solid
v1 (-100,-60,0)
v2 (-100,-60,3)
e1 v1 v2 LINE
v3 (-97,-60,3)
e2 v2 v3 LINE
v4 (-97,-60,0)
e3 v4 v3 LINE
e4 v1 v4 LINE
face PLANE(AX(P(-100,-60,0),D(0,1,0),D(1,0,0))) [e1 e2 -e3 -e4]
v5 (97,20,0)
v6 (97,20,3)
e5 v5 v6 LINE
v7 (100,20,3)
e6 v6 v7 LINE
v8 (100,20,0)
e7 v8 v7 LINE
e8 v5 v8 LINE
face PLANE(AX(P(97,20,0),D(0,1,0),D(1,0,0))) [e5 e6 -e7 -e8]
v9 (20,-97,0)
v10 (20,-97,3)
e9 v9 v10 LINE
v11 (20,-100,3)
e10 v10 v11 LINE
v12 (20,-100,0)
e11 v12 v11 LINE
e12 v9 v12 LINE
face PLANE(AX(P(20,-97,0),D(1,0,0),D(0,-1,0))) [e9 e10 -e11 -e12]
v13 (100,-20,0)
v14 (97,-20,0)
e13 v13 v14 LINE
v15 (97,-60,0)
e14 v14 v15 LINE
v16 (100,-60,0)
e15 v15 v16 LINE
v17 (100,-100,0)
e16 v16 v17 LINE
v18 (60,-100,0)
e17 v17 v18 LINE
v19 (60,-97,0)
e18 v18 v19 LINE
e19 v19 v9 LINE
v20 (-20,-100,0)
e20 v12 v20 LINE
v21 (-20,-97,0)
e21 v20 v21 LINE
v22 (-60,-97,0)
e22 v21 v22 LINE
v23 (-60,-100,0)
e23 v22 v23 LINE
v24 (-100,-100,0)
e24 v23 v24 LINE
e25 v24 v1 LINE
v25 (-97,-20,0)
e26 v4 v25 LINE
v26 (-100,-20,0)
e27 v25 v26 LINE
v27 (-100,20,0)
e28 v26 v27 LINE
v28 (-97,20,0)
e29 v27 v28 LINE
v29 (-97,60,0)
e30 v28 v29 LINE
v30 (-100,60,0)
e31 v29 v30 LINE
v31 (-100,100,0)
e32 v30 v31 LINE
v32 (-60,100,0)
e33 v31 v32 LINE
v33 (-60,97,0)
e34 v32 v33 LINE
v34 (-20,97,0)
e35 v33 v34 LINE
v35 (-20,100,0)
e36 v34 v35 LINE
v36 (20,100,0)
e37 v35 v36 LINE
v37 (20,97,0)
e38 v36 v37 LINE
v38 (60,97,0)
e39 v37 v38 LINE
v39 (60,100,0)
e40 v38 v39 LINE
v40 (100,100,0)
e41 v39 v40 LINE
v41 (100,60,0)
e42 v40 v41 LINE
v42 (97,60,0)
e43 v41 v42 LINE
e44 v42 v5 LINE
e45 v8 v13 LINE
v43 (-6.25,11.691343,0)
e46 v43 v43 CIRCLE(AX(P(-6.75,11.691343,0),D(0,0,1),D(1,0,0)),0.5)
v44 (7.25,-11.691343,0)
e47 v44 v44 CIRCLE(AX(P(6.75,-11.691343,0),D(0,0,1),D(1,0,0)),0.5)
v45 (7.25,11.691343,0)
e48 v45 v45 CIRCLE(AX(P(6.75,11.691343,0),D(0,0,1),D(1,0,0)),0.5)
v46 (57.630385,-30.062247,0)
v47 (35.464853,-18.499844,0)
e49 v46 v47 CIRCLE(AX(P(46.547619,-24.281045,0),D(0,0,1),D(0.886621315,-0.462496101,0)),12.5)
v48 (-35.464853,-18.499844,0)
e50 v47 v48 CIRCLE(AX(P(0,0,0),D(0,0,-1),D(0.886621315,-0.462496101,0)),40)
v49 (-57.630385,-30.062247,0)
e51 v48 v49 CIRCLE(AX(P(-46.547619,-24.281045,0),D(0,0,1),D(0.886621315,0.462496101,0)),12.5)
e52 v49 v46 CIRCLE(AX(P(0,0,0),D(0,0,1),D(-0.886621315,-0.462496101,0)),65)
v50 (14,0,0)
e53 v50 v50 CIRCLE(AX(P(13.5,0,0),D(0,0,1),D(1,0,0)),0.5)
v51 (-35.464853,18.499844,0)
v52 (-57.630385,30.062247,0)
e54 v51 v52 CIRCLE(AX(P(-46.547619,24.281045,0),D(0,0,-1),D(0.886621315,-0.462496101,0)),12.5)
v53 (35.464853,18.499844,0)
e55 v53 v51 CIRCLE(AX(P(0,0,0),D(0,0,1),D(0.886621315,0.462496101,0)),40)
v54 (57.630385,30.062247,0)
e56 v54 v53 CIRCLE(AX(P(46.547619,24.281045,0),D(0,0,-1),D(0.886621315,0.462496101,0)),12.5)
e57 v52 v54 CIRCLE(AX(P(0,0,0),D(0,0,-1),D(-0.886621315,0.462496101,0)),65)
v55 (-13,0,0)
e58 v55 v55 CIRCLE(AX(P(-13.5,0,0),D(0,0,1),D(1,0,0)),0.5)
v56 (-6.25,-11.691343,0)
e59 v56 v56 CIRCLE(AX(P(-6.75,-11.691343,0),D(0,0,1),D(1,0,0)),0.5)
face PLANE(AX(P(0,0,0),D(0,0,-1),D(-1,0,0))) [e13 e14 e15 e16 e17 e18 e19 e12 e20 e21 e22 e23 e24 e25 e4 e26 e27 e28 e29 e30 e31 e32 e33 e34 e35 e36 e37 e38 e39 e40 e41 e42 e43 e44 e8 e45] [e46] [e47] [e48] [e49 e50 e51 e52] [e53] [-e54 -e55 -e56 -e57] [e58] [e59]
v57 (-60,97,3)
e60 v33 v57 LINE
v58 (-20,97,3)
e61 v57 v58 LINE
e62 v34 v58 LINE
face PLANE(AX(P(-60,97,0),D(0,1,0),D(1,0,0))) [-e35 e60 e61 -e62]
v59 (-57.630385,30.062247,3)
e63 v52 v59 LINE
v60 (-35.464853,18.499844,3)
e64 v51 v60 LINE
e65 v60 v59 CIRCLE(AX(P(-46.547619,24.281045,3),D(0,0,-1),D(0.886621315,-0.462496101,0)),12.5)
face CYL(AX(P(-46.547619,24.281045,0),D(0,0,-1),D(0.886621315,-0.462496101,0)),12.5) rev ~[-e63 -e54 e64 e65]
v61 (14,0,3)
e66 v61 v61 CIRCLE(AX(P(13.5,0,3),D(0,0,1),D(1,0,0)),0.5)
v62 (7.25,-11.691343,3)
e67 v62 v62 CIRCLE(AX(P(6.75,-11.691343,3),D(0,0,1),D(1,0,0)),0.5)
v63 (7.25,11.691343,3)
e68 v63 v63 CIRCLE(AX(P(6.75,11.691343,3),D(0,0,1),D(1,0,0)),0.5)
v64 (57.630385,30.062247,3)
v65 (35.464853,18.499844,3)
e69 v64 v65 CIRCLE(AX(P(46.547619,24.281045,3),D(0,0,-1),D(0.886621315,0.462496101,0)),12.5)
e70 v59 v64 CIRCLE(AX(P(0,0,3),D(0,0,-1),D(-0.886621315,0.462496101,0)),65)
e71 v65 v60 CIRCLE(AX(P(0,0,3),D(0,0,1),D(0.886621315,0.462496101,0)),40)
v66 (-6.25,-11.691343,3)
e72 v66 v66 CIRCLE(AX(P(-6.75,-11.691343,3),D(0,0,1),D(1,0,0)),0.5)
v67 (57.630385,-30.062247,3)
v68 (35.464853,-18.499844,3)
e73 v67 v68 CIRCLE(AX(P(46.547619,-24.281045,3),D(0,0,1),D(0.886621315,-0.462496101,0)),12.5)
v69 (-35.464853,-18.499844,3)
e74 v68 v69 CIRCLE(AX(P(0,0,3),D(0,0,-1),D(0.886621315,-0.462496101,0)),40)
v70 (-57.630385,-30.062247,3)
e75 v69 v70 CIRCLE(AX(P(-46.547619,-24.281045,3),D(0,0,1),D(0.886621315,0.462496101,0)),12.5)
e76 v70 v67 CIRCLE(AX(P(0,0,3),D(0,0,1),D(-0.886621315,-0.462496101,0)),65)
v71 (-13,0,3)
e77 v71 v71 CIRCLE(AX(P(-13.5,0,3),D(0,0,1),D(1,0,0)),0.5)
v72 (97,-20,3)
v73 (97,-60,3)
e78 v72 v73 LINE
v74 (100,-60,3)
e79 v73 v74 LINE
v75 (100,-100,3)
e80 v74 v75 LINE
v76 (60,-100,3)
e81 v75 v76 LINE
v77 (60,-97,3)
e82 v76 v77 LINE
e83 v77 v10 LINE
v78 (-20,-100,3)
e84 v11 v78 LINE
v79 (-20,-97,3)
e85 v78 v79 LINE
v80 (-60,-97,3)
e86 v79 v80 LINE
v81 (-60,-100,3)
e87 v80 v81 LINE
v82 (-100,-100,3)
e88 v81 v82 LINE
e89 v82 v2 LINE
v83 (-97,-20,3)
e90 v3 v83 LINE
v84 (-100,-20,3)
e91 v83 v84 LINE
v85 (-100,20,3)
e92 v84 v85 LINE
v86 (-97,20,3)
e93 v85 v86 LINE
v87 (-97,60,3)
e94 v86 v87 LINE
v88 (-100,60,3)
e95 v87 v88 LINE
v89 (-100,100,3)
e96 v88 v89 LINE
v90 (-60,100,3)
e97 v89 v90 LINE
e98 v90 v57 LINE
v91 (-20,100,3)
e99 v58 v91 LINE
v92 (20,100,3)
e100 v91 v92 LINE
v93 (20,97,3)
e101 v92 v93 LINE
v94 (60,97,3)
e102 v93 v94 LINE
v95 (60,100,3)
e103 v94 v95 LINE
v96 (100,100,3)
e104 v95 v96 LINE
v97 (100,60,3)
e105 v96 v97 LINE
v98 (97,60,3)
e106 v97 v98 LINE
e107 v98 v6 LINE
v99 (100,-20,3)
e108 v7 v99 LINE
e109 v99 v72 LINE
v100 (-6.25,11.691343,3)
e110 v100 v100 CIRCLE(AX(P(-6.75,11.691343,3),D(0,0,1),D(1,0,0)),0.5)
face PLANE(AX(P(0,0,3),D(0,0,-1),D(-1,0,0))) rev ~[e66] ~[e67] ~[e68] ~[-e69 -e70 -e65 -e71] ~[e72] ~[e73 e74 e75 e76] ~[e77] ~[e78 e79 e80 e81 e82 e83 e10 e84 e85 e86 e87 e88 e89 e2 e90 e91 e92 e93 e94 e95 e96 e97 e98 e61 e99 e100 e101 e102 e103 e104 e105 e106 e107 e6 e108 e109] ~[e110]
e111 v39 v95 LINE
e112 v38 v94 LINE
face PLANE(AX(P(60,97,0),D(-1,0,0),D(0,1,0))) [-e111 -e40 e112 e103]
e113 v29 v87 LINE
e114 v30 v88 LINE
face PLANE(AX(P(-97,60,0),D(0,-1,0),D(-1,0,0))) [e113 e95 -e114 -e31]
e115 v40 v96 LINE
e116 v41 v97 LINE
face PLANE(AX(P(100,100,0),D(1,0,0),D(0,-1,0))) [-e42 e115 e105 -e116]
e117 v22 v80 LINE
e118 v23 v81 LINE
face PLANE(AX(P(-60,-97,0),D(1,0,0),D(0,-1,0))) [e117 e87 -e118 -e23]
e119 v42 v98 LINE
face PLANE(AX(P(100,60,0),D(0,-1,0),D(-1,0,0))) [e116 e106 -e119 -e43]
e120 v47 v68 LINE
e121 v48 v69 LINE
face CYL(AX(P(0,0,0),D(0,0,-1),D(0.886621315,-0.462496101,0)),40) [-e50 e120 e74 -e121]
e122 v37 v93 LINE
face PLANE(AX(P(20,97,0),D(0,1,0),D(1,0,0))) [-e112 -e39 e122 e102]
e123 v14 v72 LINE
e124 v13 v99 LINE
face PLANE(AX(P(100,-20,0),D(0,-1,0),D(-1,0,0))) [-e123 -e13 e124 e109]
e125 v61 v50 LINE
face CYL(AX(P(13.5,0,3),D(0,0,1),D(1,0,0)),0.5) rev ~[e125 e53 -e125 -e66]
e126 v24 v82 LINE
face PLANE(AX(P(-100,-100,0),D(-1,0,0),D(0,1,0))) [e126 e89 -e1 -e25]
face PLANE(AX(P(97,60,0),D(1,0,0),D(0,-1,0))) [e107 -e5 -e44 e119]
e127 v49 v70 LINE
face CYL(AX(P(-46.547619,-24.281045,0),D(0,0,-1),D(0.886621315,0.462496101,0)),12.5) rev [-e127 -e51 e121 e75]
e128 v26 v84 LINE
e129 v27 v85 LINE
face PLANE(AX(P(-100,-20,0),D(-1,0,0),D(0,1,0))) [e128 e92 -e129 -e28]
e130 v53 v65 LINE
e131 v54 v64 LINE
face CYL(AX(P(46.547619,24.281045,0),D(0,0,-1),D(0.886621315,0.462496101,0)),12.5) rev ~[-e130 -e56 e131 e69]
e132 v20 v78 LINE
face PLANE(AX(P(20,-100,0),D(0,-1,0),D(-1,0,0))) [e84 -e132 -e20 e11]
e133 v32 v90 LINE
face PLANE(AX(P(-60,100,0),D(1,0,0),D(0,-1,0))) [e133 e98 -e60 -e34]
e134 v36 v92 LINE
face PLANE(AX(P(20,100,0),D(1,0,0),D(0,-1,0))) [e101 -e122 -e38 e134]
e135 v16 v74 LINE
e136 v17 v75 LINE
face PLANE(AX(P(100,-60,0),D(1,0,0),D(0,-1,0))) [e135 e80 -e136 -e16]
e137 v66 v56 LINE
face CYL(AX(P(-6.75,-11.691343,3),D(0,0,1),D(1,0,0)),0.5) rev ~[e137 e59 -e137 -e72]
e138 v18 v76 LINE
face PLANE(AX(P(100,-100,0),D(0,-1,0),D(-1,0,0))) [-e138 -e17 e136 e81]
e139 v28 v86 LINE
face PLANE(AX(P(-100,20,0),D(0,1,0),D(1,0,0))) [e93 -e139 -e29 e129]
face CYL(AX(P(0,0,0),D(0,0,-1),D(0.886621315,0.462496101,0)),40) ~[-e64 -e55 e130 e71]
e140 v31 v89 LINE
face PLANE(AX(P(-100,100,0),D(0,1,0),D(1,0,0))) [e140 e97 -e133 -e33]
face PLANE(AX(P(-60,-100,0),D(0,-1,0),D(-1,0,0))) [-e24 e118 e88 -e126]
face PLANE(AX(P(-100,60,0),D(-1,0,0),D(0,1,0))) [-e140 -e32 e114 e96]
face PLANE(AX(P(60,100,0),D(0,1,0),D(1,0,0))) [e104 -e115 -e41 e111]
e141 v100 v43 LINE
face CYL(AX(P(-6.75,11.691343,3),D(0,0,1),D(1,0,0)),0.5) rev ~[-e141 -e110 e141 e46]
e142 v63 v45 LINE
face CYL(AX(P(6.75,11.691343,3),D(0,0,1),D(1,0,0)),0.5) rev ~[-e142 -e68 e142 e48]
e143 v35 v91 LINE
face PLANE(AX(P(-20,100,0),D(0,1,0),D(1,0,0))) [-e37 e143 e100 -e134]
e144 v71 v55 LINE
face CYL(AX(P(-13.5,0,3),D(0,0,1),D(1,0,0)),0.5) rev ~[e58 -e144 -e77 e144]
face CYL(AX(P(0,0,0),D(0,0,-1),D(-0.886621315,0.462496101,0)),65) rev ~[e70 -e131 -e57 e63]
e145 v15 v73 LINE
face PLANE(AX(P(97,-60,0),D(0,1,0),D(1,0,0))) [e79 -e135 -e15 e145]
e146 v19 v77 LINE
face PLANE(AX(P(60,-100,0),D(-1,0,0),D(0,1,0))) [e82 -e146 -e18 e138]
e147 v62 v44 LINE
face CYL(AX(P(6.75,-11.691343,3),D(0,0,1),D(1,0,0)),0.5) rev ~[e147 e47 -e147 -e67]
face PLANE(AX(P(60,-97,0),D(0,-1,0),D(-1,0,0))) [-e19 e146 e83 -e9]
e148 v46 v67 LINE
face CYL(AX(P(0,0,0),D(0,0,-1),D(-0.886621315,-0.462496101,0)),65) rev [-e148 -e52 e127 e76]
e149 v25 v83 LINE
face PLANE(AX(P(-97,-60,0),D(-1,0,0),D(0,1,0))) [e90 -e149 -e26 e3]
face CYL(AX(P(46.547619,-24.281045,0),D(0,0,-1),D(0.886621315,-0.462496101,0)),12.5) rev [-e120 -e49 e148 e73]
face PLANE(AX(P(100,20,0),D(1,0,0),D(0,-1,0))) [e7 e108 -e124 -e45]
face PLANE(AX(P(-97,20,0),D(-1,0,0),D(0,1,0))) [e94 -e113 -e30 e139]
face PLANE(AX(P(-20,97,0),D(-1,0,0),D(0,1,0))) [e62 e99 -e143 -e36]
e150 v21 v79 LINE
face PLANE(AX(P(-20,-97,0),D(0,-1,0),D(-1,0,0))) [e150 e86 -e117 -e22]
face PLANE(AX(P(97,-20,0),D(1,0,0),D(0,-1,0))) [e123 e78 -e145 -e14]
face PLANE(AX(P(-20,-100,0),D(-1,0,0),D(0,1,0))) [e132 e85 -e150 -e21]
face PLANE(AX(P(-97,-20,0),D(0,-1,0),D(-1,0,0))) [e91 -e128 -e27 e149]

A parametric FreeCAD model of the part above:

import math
import FreeCAD as App
import Part
import Sketcher
from FreeCAD import Vector
Q = App.Units.Quantity

doc = App.newDocument("Part")
body = doc.addObject("PartDesign::Body", "Body")

sketch1 = doc.addObject("Sketcher::SketchObject", "Sketch")
body.addObject(sketch1)
sketch1.AttachmentSupport = (doc.XY_Plane, [""])
sketch1.MapMode = "FlatFace"
sketch1.addGeometry([
    Part.LineSegment(Vector(100, -100, 0), Vector(100, -60, 0)),
    Part.LineSegment(Vector(100, -60, 0), Vector(97, -60, 0)),
    Part.LineSegment(Vector(97, -60, 0), Vector(97, -20, 0)),
    Part.LineSegment(Vector(97, -20, 0), Vector(100, -20, 0)),
    Part.LineSegment(Vector(100, -20, 0), Vector(100, 20, 0)),
    Part.LineSegment(Vector(100, 20, 0), Vector(97, 20, 0)),
    Part.LineSegment(Vector(97, 20, 0), Vector(97, 60, 0)),
    Part.LineSegment(Vector(97, 60, 0), Vector(100, 60, 0)),
    Part.LineSegment(Vector(100, 60, 0), Vector(100, 100, 0)),
    Part.LineSegment(Vector(100, 100, 0), Vector(60, 100, 0)),
    Part.LineSegment(Vector(60, 100, 0), Vector(60, 97, 0)),
    Part.LineSegment(Vector(60, 97, 0), Vector(20, 97, 0)),
    Part.LineSegment(Vector(20, 97, 0), Vector(20, 100, 0)),
    Part.LineSegment(Vector(20, 100, 0), Vector(-20, 100, 0)),
    Part.LineSegment(Vector(-20, 100, 0), Vector(-20, 97, 0)),
    Part.LineSegment(Vector(-20, 97, 0), Vector(-60, 97, 0)),
    Part.LineSegment(Vector(-60, 97, 0), Vector(-60, 100, 0)),
    Part.LineSegment(Vector(-60, 100, 0), Vector(-100, 100, 0)),
    Part.LineSegment(Vector(-100, 100, 0), Vector(-100, 60, 0)),
    Part.LineSegment(Vector(-100, 60, 0), Vector(-97, 60, 0)),
    Part.LineSegment(Vector(-97, 60, 0), Vector(-97, 20, 0)),
    Part.LineSegment(Vector(-97, 20, 0), Vector(-100, 20, 0)),
    Part.LineSegment(Vector(-100, 20, 0), Vector(-100, -20, 0)),
    Part.LineSegment(Vector(-100, -20, 0), Vector(-97, -20, 0)),
    Part.LineSegment(Vector(-97, -20, 0), Vector(-97, -60, 0)),
    Part.LineSegment(Vector(-97, -60, 0), Vector(-100, -60, 0)),
    Part.LineSegment(Vector(-100, -60, 0), Vector(-100, -100, 0)),
    Part.LineSegment(Vector(-100, -100, 0), Vector(-60, -100, 0)),
    Part.LineSegment(Vector(-60, -100, 0), Vector(-60, -97, 0)),
    Part.LineSegment(Vector(-60, -97, 0), Vector(-20, -97, 0)),
    Part.LineSegment(Vector(-20, -97, 0), Vector(-20, -100, 0)),
    Part.LineSegment(Vector(-20, -100, 0), Vector(20, -100, 0)),
    Part.LineSegment(Vector(20, -100, 0), Vector(20, -97, 0)),
    Part.LineSegment(Vector(20, -97, 0), Vector(60, -97, 0)),
    Part.LineSegment(Vector(60, -97, 0), Vector(60, -100, 0)),
    Part.LineSegment(Vector(60, -100, 0), Vector(100, -100, 0)),
    Part.ArcOfCircle(Part.Circle(Vector(-46.547619, -24.281045, 0), Vector(0, 0, 1), 12.5), math.radians(27.548294), math.radians(207.548294)),
    Part.ArcOfCircle(Part.Circle(Vector(0, 0, 0), Vector(0, 0, 1), 40), math.radians(-152.451706), math.radians(-27.548294)),
    Part.ArcOfCircle(Part.Circle(Vector(46.547619, -24.281045, 0), Vector(0, 0, 1), 12.5), math.radians(-27.548294), math.radians(152.451706)),
    Part.ArcOfCircle(Part.Circle(Vector(0, 0, 0), Vector(0, 0, 1), 65), math.radians(-152.451706), math.radians(-27.548294)),
    Part.ArcOfCircle(Part.Circle(Vector(0, 0, 0), Vector(0, 0, 1), 40), math.radians(27.548294), math.radians(152.451706)),
    Part.ArcOfCircle(Part.Circle(Vector(-46.547619, 24.281045, 0), Vector(0, 0, 1), 12.5), math.radians(152.451706), math.radians(332.451706)),
    Part.ArcOfCircle(Part.Circle(Vector(0, 0, 0), Vector(0, 0, 1), 65), math.radians(27.548294), math.radians(152.451706)),
    Part.ArcOfCircle(Part.Circle(Vector(46.547619, 24.281045, 0), Vector(0, 0, 1), 12.5), math.radians(-152.451706), math.radians(27.548294)),
], False)
sketch1.addConstraint([
    Sketcher.Constraint("Coincident", 0, 2, 1, 1),
    Sketcher.Constraint("Coincident", 1, 2, 2, 1),
    Sketcher.Constraint("Coincident", 2, 2, 3, 1),
    Sketcher.Constraint("Coincident", 3, 2, 4, 1),
    Sketcher.Constraint("Coincident", 4, 2, 5, 1),
    Sketcher.Constraint("Coincident", 5, 2, 6, 1),
    Sketcher.Constraint("Coincident", 6, 2, 7, 1),
    Sketcher.Constraint("Coincident", 7, 2, 8, 1),
    Sketcher.Constraint("Coincident", 8, 2, 9, 1),
    Sketcher.Constraint("Coincident", 9, 2, 10, 1),
    Sketcher.Constraint("Coincident", 10, 2, 11, 1),
    Sketcher.Constraint("Coincident", 11, 2, 12, 1),
    Sketcher.Constraint("Coincident", 12, 2, 13, 1),
    Sketcher.Constraint("Coincident", 13, 2, 14, 1),
    Sketcher.Constraint("Coincident", 14, 2, 15, 1),
    Sketcher.Constraint("Coincident", 15, 2, 16, 1),
    Sketcher.Constraint("Coincident", 16, 2, 17, 1),
    Sketcher.Constraint("Coincident", 17, 2, 18, 1),
    Sketcher.Constraint("Coincident", 18, 2, 19, 1),
    Sketcher.Constraint("Coincident", 19, 2, 20, 1),
    Sketcher.Constraint("Coincident", 20, 2, 21, 1),
    Sketcher.Constraint("Coincident", 21, 2, 22, 1),
    Sketcher.Constraint("Coincident", 22, 2, 23, 1),
    Sketcher.Constraint("Coincident", 23, 2, 24, 1),
    Sketcher.Constraint("Coincident", 24, 2, 25, 1),
    Sketcher.Constraint("Coincident", 25, 2, 26, 1),
    Sketcher.Constraint("Coincident", 26, 2, 27, 1),
    Sketcher.Constraint("Coincident", 27, 2, 28, 1),
    Sketcher.Constraint("Coincident", 28, 2, 29, 1),
    Sketcher.Constraint("Coincident", 29, 2, 30, 1),
    Sketcher.Constraint("Coincident", 30, 2, 31, 1),
    Sketcher.Constraint("Coincident", 31, 2, 32, 1),
    Sketcher.Constraint("Coincident", 32, 2, 33, 1),
    Sketcher.Constraint("Coincident", 33, 2, 34, 1),
    Sketcher.Constraint("Coincident", 34, 2, 35, 1),
    Sketcher.Constraint("Coincident", 35, 2, 0, 1),
    Sketcher.Constraint("Tangent", 36, 1, 37, 1),
    Sketcher.Constraint("Tangent", 37, 2, 38, 2),
    Sketcher.Constraint("Tangent", 38, 1, 39, 2),
    Sketcher.Constraint("Tangent", 39, 1, 36, 2),
    Sketcher.Constraint("Tangent", 40, 2, 41, 2),
    Sketcher.Constraint("Tangent", 41, 1, 42, 2),
    Sketcher.Constraint("Tangent", 42, 1, 43, 2),
    Sketcher.Constraint("Tangent", 43, 1, 40, 1),
    Sketcher.Constraint("Vertical", 0),
    Sketcher.Constraint("Horizontal", 1),
    Sketcher.Constraint("Vertical", 2),
    Sketcher.Constraint("Horizontal", 3),
    Sketcher.Constraint("Vertical", 4),
    Sketcher.Constraint("Horizontal", 5),
    Sketcher.Constraint("Vertical", 6),
    Sketcher.Constraint("Horizontal", 7),
    Sketcher.Constraint("Vertical", 8),
    Sketcher.Constraint("Horizontal", 9),
    Sketcher.Constraint("Vertical", 10),
    Sketcher.Constraint("Horizontal", 11),
    Sketcher.Constraint("Vertical", 12),
    Sketcher.Constraint("Horizontal", 13),
    Sketcher.Constraint("Vertical", 14),
    Sketcher.Constraint("Horizontal", 15),
    Sketcher.Constraint("Vertical", 16),
    Sketcher.Constraint("Horizontal", 17),
    Sketcher.Constraint("Vertical", 18),
    Sketcher.Constraint("Horizontal", 19),
    Sketcher.Constraint("Vertical", 20),
    Sketcher.Constraint("Horizontal", 21),
    Sketcher.Constraint("Vertical", 22),
    Sketcher.Constraint("Horizontal", 23),
    Sketcher.Constraint("Vertical", 24),
    Sketcher.Constraint("Horizontal", 25),
    Sketcher.Constraint("Vertical", 26),
    Sketcher.Constraint("Horizontal", 27),
    Sketcher.Constraint("Vertical", 28),
    Sketcher.Constraint("Horizontal", 29),
    Sketcher.Constraint("Vertical", 30),
    Sketcher.Constraint("Horizontal", 31),
    Sketcher.Constraint("Vertical", 32),
    Sketcher.Constraint("Horizontal", 33),
    Sketcher.Constraint("Vertical", 34),
    Sketcher.Constraint("Horizontal", 35),
    Sketcher.Constraint("Coincident", 37, 3, -1, 1),
    Sketcher.Constraint("Coincident", 39, 3, -1, 1),
    Sketcher.Constraint("Coincident", 40, 3, -1, 1),
    Sketcher.Constraint("Coincident", 42, 3, -1, 1),
    Sketcher.Constraint("Equal", 37, 40),
    Sketcher.Constraint("Equal", 38, 41),
    Sketcher.Constraint("Symmetric", 0, 2, 18, 2, -1, 1),
    Sketcher.Constraint("Symmetric", 2, 2, 20, 2, -1, 1),
    Sketcher.Constraint("Symmetric", 4, 2, 22, 2, -1, 1),
    Sketcher.Constraint("Symmetric", 6, 2, 24, 2, -1, 1),
    Sketcher.Constraint("Symmetric", 8, 2, 26, 2, -1, 1),
    Sketcher.Constraint("Symmetric", 10, 2, 28, 2, -1, 1),
    Sketcher.Constraint("Symmetric", 12, 2, 30, 2, -1, 1),
    Sketcher.Constraint("Symmetric", 14, 2, 32, 2, -1, 1),
    Sketcher.Constraint("Symmetric", 16, 2, 34, 2, -1, 1),
    Sketcher.Constraint("Symmetric", 11, 2, 14, 2, -2),
    Sketcher.Constraint("Symmetric", 9, 2, 16, 2, -2),
    Sketcher.Constraint("Symmetric", 7, 2, 18, 2, -2),
    Sketcher.Constraint("Symmetric", 5, 2, 20, 2, -2),
    Sketcher.Constraint("Horizontal", 36, 3, 38, 3),
    Sketcher.Constraint("Horizontal", 41, 3, 43, 3),
    Sketcher.Constraint("Horizontal", 9, 2, 12, 2),
    Sketcher.Constraint("Vertical", 36, 3, 41, 3),
    Sketcher.Constraint("Vertical", 0, 2, 3, 2),
    Sketcher.Constraint("Equal", 9, 11),
    Sketcher.Constraint("Equal", 11, 13),
    Sketcher.Constraint("Equal", 35, 0),
    Sketcher.Constraint("Equal", 0, 2),
    Sketcher.Constraint("Equal", 2, 4),
    Sketcher.Constraint("Equal", 25, 10),
    Sketcher.Constraint("Radius", 37, Q("40 mm")),
    Sketcher.Constraint("Radius", 39, Q("65 mm")),
    Sketcher.Constraint("DistanceX", 1, 2, 1, 1, Q("3 mm")),
    Sketcher.Constraint("DistanceX", 9, 2, 9, 1, Q("40 mm")),
    Sketcher.Constraint("DistanceY", 36, 3, 36, 1, Q("5.781201 mm")),
])
pad1 = doc.addObject("PartDesign::Pad", "Pad")
body.addObject(pad1)
pad1.Profile = sketch1
pad1.Length = 3

sketch2 = doc.addObject("Sketcher::SketchObject", "Sketch001")
body.addObject(sketch2)
sketch2.AttachmentSupport = (doc.XY_Plane, [""])
sketch2.MapMode = "FlatFace"
sketch2.AttachmentOffset = App.Placement(Vector(0, 0, 3), App.Rotation())
sketch2.addGeometry([
    Part.Circle(Vector(-13.5, 0, 0), Vector(0, 0, 1), 0.5),
    Part.Circle(Vector(-6.75, 11.691343, 0), Vector(0, 0, 1), 0.5),
    Part.Circle(Vector(6.75, 11.691343, 0), Vector(0, 0, 1), 0.5),
    Part.Circle(Vector(13.5, 0, 0), Vector(0, 0, 1), 0.5),
    Part.Circle(Vector(6.75, -11.691343, 0), Vector(0, 0, 1), 0.5),
    Part.Circle(Vector(-6.75, -11.691343, 0), Vector(0, 0, 1), 0.5),
], False)
sketch2.addConstraint([
    Sketcher.Constraint("Equal", 0, 1),
    Sketcher.Constraint("Equal", 1, 2),
    Sketcher.Constraint("Equal", 2, 3),
    Sketcher.Constraint("Equal", 3, 4),
    Sketcher.Constraint("Equal", 4, 5),
    Sketcher.Constraint("Symmetric", 0, 3, 3, 3, -1, 1),
    Sketcher.Constraint("Symmetric", 1, 3, 4, 3, -1, 1),
    Sketcher.Constraint("Symmetric", 2, 3, 5, 3, -1, 1),
    Sketcher.Constraint("Symmetric", 1, 3, 2, 3, -2),
    Sketcher.Constraint("PointOnObject", 0, 3, -1),
    Sketcher.Constraint("Diameter", 0, Q("1 mm")),
    Sketcher.Constraint("DistanceX", 0, 3, 3, 3, Q("27 mm")),
    Sketcher.Constraint("DistanceX", 1, 3, 2, 3, Q("13.5 mm")),
    Sketcher.Constraint("DistanceY", -1, 1, 1, 3, Q("11.691343 mm")),
])
pocket1 = doc.addObject("PartDesign::Pocket", "Pocket")
body.addObject(pocket1)
pocket1.Profile = sketch2
pocket1.Length = 3

doc.recompute()
